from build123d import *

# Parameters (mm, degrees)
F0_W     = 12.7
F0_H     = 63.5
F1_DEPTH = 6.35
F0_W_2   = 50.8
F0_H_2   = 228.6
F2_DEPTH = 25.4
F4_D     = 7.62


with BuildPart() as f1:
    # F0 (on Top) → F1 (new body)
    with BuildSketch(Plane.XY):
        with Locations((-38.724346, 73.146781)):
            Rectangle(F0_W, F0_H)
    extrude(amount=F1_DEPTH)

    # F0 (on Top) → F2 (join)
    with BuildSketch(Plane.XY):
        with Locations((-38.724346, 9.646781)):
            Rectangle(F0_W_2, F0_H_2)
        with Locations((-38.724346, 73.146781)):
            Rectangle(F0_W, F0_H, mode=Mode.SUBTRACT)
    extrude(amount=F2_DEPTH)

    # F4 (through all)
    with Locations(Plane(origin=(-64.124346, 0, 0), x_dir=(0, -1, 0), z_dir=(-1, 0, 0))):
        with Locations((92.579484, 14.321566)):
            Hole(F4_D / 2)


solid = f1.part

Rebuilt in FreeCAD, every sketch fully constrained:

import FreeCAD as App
import Part
import Sketcher
from FreeCAD import Vector
Q = App.Units.Quantity


def add_polygon(sketch, points):
    """Adds a closed chain of lines whose ends are joined by coincident constraints."""
    first, n = sketch.GeometryCount, len(points)
    for a, b in zip(points, points[1:] + points[:1]):
        sketch.addGeometry(Part.LineSegment(App.Vector(*a, 0), App.Vector(*b, 0)), False)
    for i in range(n):
        sketch.addConstraint(Sketcher.Constraint("Coincident", first + i, 2, first + (i + 1) % n, 1))

doc = App.newDocument("Part")
params = doc.addObject("Spreadsheet::Sheet", "Params")
for row, (alias, value) in enumerate([
    ("sketch1_width", "0.5 in"),
    ("sketch1_height", "2.5 in"),
    ("pad1_length", "0.25 in"),
    ("sketch2_width", "2 in"),
    ("sketch2_height", "9 in"),
    ("sketch2_width2", "0.5 in"),
    ("sketch2_height2", "2.5 in"),
    ("pad2_length", "1 in"),
    ("sketch3_diameter", "0.3 in"),
    ("hole_diameter", "0.3 in"),
], start=1):
    params.set(f"A{row}", alias)
    params.set(f"B{row}", "=" + value)
    params.setAlias(f"B{row}", alias)

body = doc.addObject("PartDesign::Body", "Body")

# Sketch on XY plane
sketch1 = body.newObject("Sketcher::SketchObject", "Sketch")
sketch1.AttachmentSupport = (doc.getObject("XY_Plane"), [""])
sketch1.MapMode = "FlatFace"
add_polygon(sketch1, [(-45, 105), (-45, 41), (-32, 41), (-32, 105)])  # lines 0-3
sketch1.addConstraint([
    Sketcher.Constraint("Vertical", 0),
    Sketcher.Constraint("Horizontal", 1),
    Sketcher.Constraint("Vertical", 2),
    Sketcher.Constraint("Horizontal", 3),
    Sketcher.Constraint("DistanceX", 1, 1, 1, 2, Q("0.5 in")),
    Sketcher.Constraint("DistanceY", 0, 2, 0, 1, Q("2.5 in")),
    Sketcher.Constraint("DistanceY", -1, 1, 0, 2, Q("41.396781 mm")),
    Sketcher.Constraint("DistanceX", 0, 2, -1, 1, Q("45.074346 mm")),
])
sketch1.setExpression("Constraints[8]", "Params.sketch1_width")
sketch1.setExpression("Constraints[9]", "Params.sketch1_height")
pad1 = body.newObject("PartDesign::Pad", "Pad")
pad1.Profile = sketch1
pad1.setExpression("Length", "Params.pad1_length")

# Sketch on XY plane
sketch2 = body.newObject("Sketcher::SketchObject", "Sketch001")
sketch2.AttachmentSupport = (doc.getObject("XY_Plane"), [""])
sketch2.MapMode = "FlatFace"
add_polygon(sketch2, [(-64, 124), (-64, -105), (-13, -105), (-13, 124)])  # lines 0-3
add_polygon(sketch2, [(-32, 41), (-45, 41), (-45, 105), (-32, 105)])  # lines 4-7
sketch2.addConstraint([
    Sketcher.Constraint("Vertical", 0),
    Sketcher.Constraint("Horizontal", 1),
    Sketcher.Constraint("Vertical", 2),
    Sketcher.Constraint("Horizontal", 3),
    Sketcher.Constraint("Horizontal", 4),
    Sketcher.Constraint("Vertical", 5),
    Sketcher.Constraint("Horizontal", 6),
    Sketcher.Constraint("Vertical", 7),
    Sketcher.Constraint("DistanceX", 1, 1, 1, 2, Q("2 in")),
    Sketcher.Constraint("DistanceY", 0, 2, 0, 1, Q("9 in")),
    Sketcher.Constraint("DistanceX", 4, 2, 4, 1, Q("0.5 in")),
    Sketcher.Constraint("DistanceY", 5, 1, 5, 2, Q("2.5 in")),
    Sketcher.Constraint("DistanceX", 3, 2, 4, 2, Q("0.75 in")),
    Sketcher.Constraint("DistanceY", 4, 2, 3, 2, Q("3.25 in")),
    Sketcher.Constraint("DistanceY", 0, 2, -1, 1, Q("104.653219 mm")),
    Sketcher.Constraint("DistanceX", 0, 2, -1, 1, Q("64.124346 mm")),
])
sketch2.setExpression("Constraints[16]", "Params.sketch2_width")
sketch2.setExpression("Constraints[17]", "Params.sketch2_height")
sketch2.setExpression("Constraints[18]", "Params.sketch2_width2")
sketch2.setExpression("Constraints[19]", "Params.sketch2_height2")
pad2 = body.newObject("PartDesign::Pad", "Pad001")
pad2.Profile = sketch2
pad2.setExpression("Length", "Params.pad2_length")

# Sketch on YZ plane
sketch3 = body.newObject("Sketcher::SketchObject", "Sketch002")
sketch3.AttachmentSupport = (doc.getObject("YZ_Plane"), [""])
sketch3.MapMode = "FlatFace"
sketch3.AttachmentOffset = App.Placement(Vector(0, 0, -64.124346), App.Rotation())
sketch3.addGeometry(Part.Circle(Vector(-92.6, 14.3, 0), Vector(0, 0, 1), 3.8), False)
sketch3.addConstraint([
    Sketcher.Constraint("Diameter", 0, Q("0.3 in")),
    Sketcher.Constraint("DistanceX", 0, 3, -1, 1, Q("92.579484 mm")),
    Sketcher.Constraint("DistanceY", -1, 1, 0, 3, Q("14.321566 mm")),
])
sketch3.setExpression("Constraints[0]", "Params.sketch3_diameter")
doc.recompute()
hole = body.newObject("PartDesign::Hole", "Hole")
hole.Profile = sketch3
hole.ThreadType = "None"
hole.setExpression("Diameter", "Params.hole_diameter")
hole.DepthType = "ThroughAll"
hole.Reversed = True

doc.recompute()
